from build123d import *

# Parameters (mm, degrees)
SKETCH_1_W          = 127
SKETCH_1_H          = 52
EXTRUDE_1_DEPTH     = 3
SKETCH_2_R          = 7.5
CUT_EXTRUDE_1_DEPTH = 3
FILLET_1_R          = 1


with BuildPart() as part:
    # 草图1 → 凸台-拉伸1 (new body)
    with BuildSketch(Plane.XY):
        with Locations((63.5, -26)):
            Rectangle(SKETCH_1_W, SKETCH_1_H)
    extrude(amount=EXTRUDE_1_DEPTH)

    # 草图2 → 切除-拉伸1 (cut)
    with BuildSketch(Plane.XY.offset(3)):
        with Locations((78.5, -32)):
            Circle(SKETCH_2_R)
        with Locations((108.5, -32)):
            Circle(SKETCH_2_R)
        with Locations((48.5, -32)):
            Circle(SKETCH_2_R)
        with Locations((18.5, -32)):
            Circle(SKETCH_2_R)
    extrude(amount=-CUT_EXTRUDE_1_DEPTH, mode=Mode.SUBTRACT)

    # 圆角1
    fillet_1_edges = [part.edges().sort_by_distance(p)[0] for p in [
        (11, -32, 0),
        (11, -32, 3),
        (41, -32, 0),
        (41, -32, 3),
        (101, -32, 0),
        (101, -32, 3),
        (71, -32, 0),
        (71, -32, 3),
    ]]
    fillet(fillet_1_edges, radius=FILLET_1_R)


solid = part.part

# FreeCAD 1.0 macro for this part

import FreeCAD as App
import Part
import Sketcher
from FreeCAD import Vector


def edges_at(feature, points):
    """Names of the edges that pass closest to the given points."""
    edges = feature.Shape.Edges
    near = lambda p: min(range(len(edges)), key=lambda i: edges[i].distToShape(Part.Vertex(*p))[0])
    return sorted({f"Edge{near(p) + 1}" for p in points})

doc = App.newDocument("Part")
body = doc.addObject("PartDesign::Body", "Body")

sketch1 = doc.addObject("Sketcher::SketchObject", "Sketch")
body.addObject(sketch1)
sketch1.AttachmentSupport = (doc.XY_Plane, [""])
sketch1.MapMode = "FlatFace"
sketch1.addGeometry([
    Part.LineSegment(Vector(0, 0, 0), Vector(0, -52, 0)),
    Part.LineSegment(Vector(0, -52, 0), Vector(127, -52, 0)),
    Part.LineSegment(Vector(127, -52, 0), Vector(127, 0, 0)),
    Part.LineSegment(Vector(127, 0, 0), Vector(0, 0, 0)),
], False)
sketch1.addConstraint([
    Sketcher.Constraint("Coincident", 0, 2, 1, 1),
    Sketcher.Constraint("Coincident", 1, 2, 2, 1),
    Sketcher.Constraint("Coincident", 2, 2, 3, 1),
    Sketcher.Constraint("Coincident", 3, 2, 0, 1),
    Sketcher.Constraint("Vertical", 0),
    Sketcher.Constraint("Horizontal", 1),
    Sketcher.Constraint("Vertical", 2),
    Sketcher.Constraint("Horizontal", 3),
    Sketcher.Constraint("Coincident", 3, 2, -1, 1),
    Sketcher.Constraint("DistanceX", 1, 1, 1, 2, 127.0),
    Sketcher.Constraint("DistanceY", 0, 2, 0, 1, 52.0),
])
pad1 = doc.addObject("PartDesign::Pad", "Pad")
body.addObject(pad1)
pad1.Profile = sketch1
pad1.Length = 3

sketch2 = doc.addObject("Sketcher::SketchObject", "Sketch001")
body.addObject(sketch2)
sketch2.AttachmentSupport = (doc.XY_Plane, [""])
sketch2.MapMode = "FlatFace"
sketch2.AttachmentOffset = App.Placement(Vector(0, 0, 3), App.Rotation())
sketch2.addGeometry([
    Part.Circle(Vector(78, -32, 0), Vector(0, 0, 1), 8),
    Part.Circle(Vector(108, -32, 0), Vector(0, 0, 1), 8),
    Part.Circle(Vector(48, -32, 0), Vector(0, 0, 1), 8),
    Part.Circle(Vector(18, -32, 0), Vector(0, 0, 1), 8),
], False)
sketch2.addConstraint([
    Sketcher.Constraint("Equal", 0, 1),
    Sketcher.Constraint("Equal", 1, 2),
    Sketcher.Constraint("Equal", 2, 3),
    Sketcher.Constraint("Horizontal", 0, 3, 1, 3),
    Sketcher.Constraint("Horizontal", 1, 3, 2, 3),
    Sketcher.Constraint("Horizontal", 2, 3, 3, 3),
    Sketcher.Constraint("Diameter", 0, 15.0),
    Sketcher.Constraint("DistanceY", 0, 3, -1, 1, 32.0),
    Sketcher.Constraint("DistanceX", 0, 3, 1, 3, 30.0),
    Sketcher.Constraint("DistanceX", 2, 3, 0, 3, 30.0),
    Sketcher.Constraint("DistanceX", 3, 3, 2, 3, 30.0),
    Sketcher.Constraint("DistanceX", -1, 1, 0, 3, 78.5),
])
pocket1 = doc.addObject("PartDesign::Pocket", "Pocket")
body.addObject(pocket1)
pocket1.Profile = sketch2
pocket1.Length = 3
doc.recompute()

fillet = doc.addObject("PartDesign::Fillet", "Fillet")
body.addObject(fillet)
fillet.Base = (pocket1, edges_at(pocket1, [
    (11, -32, 0),
    (11, -32, 3),
    (41, -32, 0),
    (41, -32, 3),
    (101, -32, 0),
    (101, -32, 3),
    (71, -32, 0),
    (71, -32, 3),
]))
fillet.Radius = 1

doc.recompute()
